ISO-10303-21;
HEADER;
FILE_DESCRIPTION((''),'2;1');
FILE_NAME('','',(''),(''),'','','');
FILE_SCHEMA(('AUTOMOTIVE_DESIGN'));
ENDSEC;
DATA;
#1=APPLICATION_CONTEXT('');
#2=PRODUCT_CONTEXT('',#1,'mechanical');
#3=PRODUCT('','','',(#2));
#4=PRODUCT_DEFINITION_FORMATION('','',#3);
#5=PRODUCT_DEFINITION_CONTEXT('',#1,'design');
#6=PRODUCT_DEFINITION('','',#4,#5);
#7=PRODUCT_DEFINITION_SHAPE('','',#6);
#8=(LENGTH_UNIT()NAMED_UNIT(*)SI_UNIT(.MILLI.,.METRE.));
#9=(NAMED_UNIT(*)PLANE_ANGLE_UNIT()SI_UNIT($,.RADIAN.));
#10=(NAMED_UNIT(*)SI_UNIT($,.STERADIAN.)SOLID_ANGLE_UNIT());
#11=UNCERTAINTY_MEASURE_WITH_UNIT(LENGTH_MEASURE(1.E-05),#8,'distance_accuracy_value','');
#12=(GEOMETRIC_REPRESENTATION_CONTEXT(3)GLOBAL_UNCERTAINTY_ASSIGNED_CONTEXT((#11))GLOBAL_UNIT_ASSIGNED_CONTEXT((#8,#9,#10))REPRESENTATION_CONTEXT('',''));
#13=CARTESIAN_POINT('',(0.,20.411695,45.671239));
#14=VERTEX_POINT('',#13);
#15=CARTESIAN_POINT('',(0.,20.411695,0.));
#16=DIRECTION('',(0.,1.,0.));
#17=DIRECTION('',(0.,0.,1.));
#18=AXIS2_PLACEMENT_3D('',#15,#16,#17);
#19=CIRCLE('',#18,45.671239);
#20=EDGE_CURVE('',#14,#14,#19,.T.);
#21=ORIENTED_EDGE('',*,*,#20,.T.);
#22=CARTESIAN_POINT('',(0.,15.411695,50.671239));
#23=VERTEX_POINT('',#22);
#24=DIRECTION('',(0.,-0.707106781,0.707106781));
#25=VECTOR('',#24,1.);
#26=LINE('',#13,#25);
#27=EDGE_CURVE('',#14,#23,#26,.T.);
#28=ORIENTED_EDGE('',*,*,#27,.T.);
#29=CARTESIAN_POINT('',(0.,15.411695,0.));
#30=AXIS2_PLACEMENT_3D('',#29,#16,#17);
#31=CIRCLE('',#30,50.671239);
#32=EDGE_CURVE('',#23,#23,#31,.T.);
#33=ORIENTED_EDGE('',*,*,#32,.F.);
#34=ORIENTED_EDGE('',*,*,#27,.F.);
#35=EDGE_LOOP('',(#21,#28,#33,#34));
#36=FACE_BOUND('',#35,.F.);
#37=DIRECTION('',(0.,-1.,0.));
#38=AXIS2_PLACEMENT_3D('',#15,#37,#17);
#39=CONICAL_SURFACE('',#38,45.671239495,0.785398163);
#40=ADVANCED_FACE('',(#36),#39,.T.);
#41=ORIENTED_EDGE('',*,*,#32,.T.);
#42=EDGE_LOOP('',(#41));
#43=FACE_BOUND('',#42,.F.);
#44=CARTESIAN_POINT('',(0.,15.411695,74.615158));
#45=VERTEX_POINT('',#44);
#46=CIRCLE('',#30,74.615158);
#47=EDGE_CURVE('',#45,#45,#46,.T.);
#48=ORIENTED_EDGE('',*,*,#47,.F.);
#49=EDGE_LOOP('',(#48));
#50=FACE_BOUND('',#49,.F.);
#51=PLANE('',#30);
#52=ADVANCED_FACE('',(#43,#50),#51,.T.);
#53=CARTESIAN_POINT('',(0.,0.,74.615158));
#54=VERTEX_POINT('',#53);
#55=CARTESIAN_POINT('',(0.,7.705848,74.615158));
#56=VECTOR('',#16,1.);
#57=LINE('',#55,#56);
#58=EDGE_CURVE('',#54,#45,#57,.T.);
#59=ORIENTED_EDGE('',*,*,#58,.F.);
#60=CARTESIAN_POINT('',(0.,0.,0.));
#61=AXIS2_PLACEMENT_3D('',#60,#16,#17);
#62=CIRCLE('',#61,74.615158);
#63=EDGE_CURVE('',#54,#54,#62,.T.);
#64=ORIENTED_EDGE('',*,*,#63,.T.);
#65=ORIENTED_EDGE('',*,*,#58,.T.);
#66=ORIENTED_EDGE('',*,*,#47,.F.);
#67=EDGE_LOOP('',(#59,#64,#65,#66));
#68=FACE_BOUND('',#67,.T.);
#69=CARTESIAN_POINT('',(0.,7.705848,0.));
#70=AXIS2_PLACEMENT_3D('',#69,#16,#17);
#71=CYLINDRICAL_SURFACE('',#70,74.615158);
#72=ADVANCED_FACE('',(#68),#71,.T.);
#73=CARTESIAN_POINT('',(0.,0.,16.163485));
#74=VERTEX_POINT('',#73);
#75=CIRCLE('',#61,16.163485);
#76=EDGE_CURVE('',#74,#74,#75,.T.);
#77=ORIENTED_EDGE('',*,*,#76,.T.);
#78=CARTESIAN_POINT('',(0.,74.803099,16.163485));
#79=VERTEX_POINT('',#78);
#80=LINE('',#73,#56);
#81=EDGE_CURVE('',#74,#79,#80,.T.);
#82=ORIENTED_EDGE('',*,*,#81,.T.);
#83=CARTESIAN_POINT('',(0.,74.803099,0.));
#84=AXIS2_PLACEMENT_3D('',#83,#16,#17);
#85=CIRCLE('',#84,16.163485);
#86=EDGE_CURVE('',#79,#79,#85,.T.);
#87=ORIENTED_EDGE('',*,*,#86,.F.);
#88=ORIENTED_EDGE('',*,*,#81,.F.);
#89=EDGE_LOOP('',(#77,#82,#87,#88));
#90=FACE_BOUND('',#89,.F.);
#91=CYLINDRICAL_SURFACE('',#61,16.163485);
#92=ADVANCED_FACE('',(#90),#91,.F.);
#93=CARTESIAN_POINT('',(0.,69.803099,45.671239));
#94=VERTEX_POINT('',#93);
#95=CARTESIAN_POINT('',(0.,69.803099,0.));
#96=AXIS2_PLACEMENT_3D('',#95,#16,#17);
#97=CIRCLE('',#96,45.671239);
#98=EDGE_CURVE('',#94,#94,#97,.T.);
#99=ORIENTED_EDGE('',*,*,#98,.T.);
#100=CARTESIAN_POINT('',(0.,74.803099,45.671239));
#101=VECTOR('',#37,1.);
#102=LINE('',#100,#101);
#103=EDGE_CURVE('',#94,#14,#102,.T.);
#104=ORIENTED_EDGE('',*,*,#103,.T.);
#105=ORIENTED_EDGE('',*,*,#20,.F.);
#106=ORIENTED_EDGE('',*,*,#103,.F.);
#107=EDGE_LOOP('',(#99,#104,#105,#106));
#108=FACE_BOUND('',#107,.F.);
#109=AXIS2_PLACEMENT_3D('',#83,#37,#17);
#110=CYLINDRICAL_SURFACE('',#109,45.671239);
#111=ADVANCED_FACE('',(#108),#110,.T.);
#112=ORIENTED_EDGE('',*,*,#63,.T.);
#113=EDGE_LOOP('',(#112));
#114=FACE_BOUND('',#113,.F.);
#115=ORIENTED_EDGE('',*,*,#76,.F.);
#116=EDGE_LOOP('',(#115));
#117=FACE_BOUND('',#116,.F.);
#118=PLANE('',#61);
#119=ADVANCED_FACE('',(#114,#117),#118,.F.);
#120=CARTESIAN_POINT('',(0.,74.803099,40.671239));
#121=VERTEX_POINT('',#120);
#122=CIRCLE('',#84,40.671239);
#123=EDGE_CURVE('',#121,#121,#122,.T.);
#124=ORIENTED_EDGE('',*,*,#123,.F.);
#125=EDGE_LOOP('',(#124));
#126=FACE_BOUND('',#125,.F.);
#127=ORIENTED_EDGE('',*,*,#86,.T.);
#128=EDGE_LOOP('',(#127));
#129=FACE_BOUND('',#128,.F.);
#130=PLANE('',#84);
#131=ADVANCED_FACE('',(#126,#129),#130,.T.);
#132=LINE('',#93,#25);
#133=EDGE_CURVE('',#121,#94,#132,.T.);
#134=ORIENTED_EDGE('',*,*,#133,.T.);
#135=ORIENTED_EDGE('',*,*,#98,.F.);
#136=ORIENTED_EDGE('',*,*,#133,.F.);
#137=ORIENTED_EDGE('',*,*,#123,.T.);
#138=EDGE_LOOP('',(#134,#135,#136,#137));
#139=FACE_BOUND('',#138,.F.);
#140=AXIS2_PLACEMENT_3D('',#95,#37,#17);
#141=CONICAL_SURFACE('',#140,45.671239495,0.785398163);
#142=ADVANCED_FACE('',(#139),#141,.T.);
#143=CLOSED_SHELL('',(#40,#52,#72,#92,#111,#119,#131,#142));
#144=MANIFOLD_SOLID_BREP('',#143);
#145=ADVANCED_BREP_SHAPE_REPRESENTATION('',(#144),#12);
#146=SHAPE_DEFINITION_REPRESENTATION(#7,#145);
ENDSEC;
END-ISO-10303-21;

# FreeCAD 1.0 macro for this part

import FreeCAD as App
import Part
import Sketcher
from FreeCAD import Vector
Q = App.Units.Quantity


def edges_at(feature, points):
    """Names of the edges that pass closest to the given points."""
    edges = feature.Shape.Edges
    near = lambda p: min(range(len(edges)), key=lambda i: edges[i].distToShape(Part.Vertex(*p))[0])
    return sorted({f"Edge{near(p) + 1}" for p in points})

doc = App.newDocument("Part")
body = doc.addObject("PartDesign::Body", "Body")

# Sketch on YZ plane
sketch1 = body.newObject("Sketcher::SketchObject", "Sketch")
sketch1.AttachmentSupport = (doc.getObject("YZ_Plane"), [""])
sketch1.MapMode = "FlatFace"
sketch1.addGeometry([
    Part.LineSegment(Vector(0, 16, 0), Vector(75, 16, 0)),  # 0
    Part.LineSegment(Vector(75, 16, 0), Vector(75, 46, 0)),  # 1
    Part.LineSegment(Vector(75, 46, 0), Vector(15, 46, 0)),  # 2
    Part.LineSegment(Vector(15, 46, 0), Vector(15, 75, 0)),  # 3
    Part.LineSegment(Vector(15, 75, 0), Vector(0, 75, 0)),  # 4
    Part.LineSegment(Vector(0, 75, 0), Vector(0, 16, 0)),  # 5
], False)
sketch1.addConstraint([
    Sketcher.Constraint("Coincident", 0, 2, 1, 1),
    Sketcher.Constraint("Coincident", 1, 2, 2, 1),
    Sketcher.Constraint("Coincident", 2, 2, 3, 1),
    Sketcher.Constraint("Coincident", 3, 2, 4, 1),
    Sketcher.Constraint("Coincident", 4, 2, 5, 1),
    Sketcher.Constraint("Coincident", 5, 2, 0, 1),
    Sketcher.Constraint("Horizontal", 0),
    Sketcher.Constraint("Vertical", 1),
    Sketcher.Constraint("Horizontal", 2),
    Sketcher.Constraint("Vertical", 3),
    Sketcher.Constraint("Horizontal", 4),
    Sketcher.Constraint("Vertical", 5),
    Sketcher.Constraint("PointOnObject", 4, 2, -2),
    Sketcher.Constraint("DistanceX", 0, 1, 0, 2, Q("74.803099 mm")),
    Sketcher.Constraint("DistanceY", 3, 1, 3, 2, Q("28.943919 mm")),
    Sketcher.Constraint("DistanceX", 2, 2, 2, 1, Q("59.391404 mm")),
    Sketcher.Constraint("DistanceY", 1, 1, 1, 2, Q("29.507754 mm")),
    Sketcher.Constraint("DistanceY", -1, 1, 1, 2, Q("45.671239 mm")),
])
revolution = body.newObject("PartDesign::Revolution", "Revolution")
revolution.Profile = sketch1
revolution.ReferenceAxis = (sketch1, ["H_Axis"])
revolution.Angle = 360
doc.recompute()

chamfer = body.newObject("PartDesign::Chamfer", "Chamfer")
chamfer.Base = (revolution, edges_at(revolution, [(0, 15.412, -45.671), (0, 74.803, -45.671)]))
chamfer.Size = 5

doc.recompute()
